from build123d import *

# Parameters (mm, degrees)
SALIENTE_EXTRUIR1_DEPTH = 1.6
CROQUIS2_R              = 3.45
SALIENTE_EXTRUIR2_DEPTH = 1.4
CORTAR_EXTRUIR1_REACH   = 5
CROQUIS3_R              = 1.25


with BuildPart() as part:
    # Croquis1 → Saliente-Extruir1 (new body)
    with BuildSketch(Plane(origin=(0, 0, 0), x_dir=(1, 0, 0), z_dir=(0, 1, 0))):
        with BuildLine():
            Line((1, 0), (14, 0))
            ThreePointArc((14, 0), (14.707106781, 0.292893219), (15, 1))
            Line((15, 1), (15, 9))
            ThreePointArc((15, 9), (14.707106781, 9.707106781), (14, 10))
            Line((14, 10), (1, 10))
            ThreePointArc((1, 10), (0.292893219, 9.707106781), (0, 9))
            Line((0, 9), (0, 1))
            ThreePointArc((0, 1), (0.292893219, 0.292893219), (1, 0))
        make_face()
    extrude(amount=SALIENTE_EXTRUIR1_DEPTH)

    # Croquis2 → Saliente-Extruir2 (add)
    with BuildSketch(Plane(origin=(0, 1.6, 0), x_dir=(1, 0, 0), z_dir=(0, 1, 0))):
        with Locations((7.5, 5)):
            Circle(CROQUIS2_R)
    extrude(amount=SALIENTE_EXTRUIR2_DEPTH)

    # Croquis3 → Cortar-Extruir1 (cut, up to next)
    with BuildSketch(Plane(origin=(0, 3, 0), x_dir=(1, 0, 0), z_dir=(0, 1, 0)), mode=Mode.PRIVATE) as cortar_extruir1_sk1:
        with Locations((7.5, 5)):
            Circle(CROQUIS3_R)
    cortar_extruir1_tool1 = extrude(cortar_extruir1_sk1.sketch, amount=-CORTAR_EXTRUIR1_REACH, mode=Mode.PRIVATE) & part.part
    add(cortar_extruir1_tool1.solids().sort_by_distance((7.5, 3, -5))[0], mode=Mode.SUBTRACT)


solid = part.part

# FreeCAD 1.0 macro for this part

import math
import FreeCAD as App
import Part
import Sketcher

doc = App.newDocument("Part")
body = doc.addObject("PartDesign::Body", "Body")

# Sketch on XZ plane
sketch1 = body.newObject("Sketcher::SketchObject", "Sketch")
sketch1.AttachmentSupport = (doc.getObject("XZ_Plane"), [""])
sketch1.MapMode = "FlatFace"
sketch1.addGeometry([
    Part.LineSegment(App.Vector(1, 0, 0), App.Vector(14, 0, 0)),  # 0
    Part.ArcOfCircle(Part.Circle(App.Vector(14, -1, 0), App.Vector(0, 0, 1), 1), math.radians(0), math.radians(90)),  # 1
    Part.LineSegment(App.Vector(15, -1, 0), App.Vector(15, -9, 0)),  # 2
    Part.ArcOfCircle(Part.Circle(App.Vector(14, -9, 0), App.Vector(0, 0, 1), 1), math.radians(-90), math.radians(0)),  # 3
    Part.LineSegment(App.Vector(14, -10, 0), App.Vector(1, -10, 0)),  # 4
    Part.ArcOfCircle(Part.Circle(App.Vector(1, -9, 0), App.Vector(0, 0, 1), 1), math.radians(-180), math.radians(-90)),  # 5
    Part.LineSegment(App.Vector(0, -9, 0), App.Vector(0, -1, 0)),  # 6
    Part.ArcOfCircle(Part.Circle(App.Vector(1, -1, 0), App.Vector(0, 0, 1), 1), math.radians(90), math.radians(180)),  # 7
], False)
sketch1.addConstraint([
    Sketcher.Constraint("Tangent", 0, 2, 1, 2),
    Sketcher.Constraint("Tangent", 1, 1, 2, 1),
    Sketcher.Constraint("Tangent", 2, 2, 3, 2),
    Sketcher.Constraint("Tangent", 3, 1, 4, 1),
    Sketcher.Constraint("Tangent", 4, 2, 5, 2),
    Sketcher.Constraint("Tangent", 5, 1, 6, 1),
    Sketcher.Constraint("Tangent", 6, 2, 7, 2),
    Sketcher.Constraint("Tangent", 7, 1, 0, 1),
    Sketcher.Constraint("Horizontal", 0),
    Sketcher.Constraint("Vertical", 2),
    Sketcher.Constraint("Horizontal", 4),
    Sketcher.Constraint("Vertical", 6),
    Sketcher.Constraint("Equal", 1, 3),
    Sketcher.Constraint("Equal", 3, 5),
    Sketcher.Constraint("Equal", 5, 7),
    Sketcher.Constraint("PointOnObject", 0, 2, -1),
    Sketcher.Constraint("PointOnObject", 5, 1, -2),
    Sketcher.Constraint("Radius", 1, 1.0),
    Sketcher.Constraint("DistanceX", 0, 1, 0, 2, 13.0),
    Sketcher.Constraint("DistanceY", 2, 2, 2, 1, 8.0),
])
pad1 = body.newObject("PartDesign::Pad", "Pad")
pad1.Profile = sketch1
pad1.Length = 1.6
pad1.Reversed = True

# Sketch on XZ plane
sketch2 = body.newObject("Sketcher::SketchObject", "Sketch001")
sketch2.AttachmentSupport = (doc.getObject("XZ_Plane"), [""])
sketch2.MapMode = "FlatFace"
sketch2.AttachmentOffset = App.Placement(App.Vector(0, 0, -1.6), App.Rotation())
sketch2.addGeometry(Part.Circle(App.Vector(7.5, -5, 0), App.Vector(0, 0, 1), 3.45), False)
sketch2.addConstraint([
    Sketcher.Constraint("Diameter", 0, 6.9),
    Sketcher.Constraint("DistanceY", 0, 3, -1, 1, 5.0),
    Sketcher.Constraint("DistanceX", -1, 1, 0, 3, 7.5),
])
pad2 = body.newObject("PartDesign::Pad", "Pad001")
pad2.Profile = sketch2
pad2.Length = 1.4
pad2.Reversed = True

# Sketch on XZ plane
sketch3 = body.newObject("Sketcher::SketchObject", "Sketch002")
sketch3.AttachmentSupport = (doc.getObject("XZ_Plane"), [""])
sketch3.MapMode = "FlatFace"
sketch3.AttachmentOffset = App.Placement(App.Vector(0, 0, -3), App.Rotation())
sketch3.addGeometry(Part.Circle(App.Vector(7.5, -5, 0), App.Vector(0, 0, 1), 1.25), False)
sketch3.addConstraint([
    Sketcher.Constraint("Diameter", 0, 2.5),
    Sketcher.Constraint("DistanceY", 0, 3, -1, 1, 5.0),
    Sketcher.Constraint("DistanceX", -1, 1, 0, 3, 7.5),
])
pocket1 = body.newObject("PartDesign::Pocket", "Pocket")
pocket1.Profile = sketch3
pocket1.Type = "UpToFirst"
pocket1.Reversed = True

doc.recompute()
